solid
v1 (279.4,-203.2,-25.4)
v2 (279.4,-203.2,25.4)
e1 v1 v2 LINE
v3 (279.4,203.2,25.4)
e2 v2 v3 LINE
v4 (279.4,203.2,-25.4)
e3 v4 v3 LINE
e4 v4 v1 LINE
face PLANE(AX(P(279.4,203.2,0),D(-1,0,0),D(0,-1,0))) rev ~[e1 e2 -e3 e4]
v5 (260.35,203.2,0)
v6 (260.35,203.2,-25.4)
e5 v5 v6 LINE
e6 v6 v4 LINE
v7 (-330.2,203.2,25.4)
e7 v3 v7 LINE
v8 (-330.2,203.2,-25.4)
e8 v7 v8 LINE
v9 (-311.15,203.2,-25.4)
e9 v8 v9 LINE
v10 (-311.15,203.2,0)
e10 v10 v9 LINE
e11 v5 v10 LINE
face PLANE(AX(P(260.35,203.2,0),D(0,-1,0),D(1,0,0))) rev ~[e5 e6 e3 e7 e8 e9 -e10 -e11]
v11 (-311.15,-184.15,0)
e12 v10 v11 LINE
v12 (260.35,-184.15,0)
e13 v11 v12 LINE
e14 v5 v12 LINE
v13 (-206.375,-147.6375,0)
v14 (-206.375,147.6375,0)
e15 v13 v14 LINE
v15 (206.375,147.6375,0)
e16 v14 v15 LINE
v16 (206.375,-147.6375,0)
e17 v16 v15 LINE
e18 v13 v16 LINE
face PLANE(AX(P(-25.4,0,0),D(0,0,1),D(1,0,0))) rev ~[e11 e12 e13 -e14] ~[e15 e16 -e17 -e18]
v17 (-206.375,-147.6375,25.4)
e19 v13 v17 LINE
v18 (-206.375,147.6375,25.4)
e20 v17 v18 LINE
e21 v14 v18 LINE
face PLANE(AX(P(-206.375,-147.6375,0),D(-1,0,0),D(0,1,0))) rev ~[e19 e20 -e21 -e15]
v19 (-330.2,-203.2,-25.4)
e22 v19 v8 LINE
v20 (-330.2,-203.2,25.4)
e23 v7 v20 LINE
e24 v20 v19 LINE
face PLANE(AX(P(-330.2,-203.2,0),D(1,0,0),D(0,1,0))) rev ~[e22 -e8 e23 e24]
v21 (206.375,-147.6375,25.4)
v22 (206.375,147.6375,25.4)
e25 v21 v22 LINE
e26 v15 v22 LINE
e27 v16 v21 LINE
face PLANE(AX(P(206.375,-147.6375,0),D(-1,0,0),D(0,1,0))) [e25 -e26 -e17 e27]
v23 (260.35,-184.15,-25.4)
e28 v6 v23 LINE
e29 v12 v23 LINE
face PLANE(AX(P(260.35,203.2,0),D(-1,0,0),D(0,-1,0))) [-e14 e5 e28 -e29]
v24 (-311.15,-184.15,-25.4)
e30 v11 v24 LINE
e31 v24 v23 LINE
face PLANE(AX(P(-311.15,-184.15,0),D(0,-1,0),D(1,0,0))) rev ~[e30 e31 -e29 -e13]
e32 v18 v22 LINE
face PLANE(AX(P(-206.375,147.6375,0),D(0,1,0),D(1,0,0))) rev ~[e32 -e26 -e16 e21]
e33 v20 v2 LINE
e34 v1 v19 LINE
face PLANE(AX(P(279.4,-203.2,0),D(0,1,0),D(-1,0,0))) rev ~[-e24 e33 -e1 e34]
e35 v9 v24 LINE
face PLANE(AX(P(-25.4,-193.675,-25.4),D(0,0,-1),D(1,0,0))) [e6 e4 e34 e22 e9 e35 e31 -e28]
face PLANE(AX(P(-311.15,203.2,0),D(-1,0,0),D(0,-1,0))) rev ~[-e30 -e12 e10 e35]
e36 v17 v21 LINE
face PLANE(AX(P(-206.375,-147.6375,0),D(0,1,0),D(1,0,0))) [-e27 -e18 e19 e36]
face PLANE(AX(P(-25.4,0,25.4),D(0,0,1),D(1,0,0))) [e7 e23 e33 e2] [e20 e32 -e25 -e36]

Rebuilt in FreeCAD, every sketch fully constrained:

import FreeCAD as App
import Part
import Sketcher
Q = App.Units.Quantity

doc = App.newDocument("Part")
params = doc.addObject("Spreadsheet::Sheet", "Params")
for row, (alias, value) in enumerate([
    ("sketch1_width", "24 in"),
    ("sketch1_height", "16 in"),
    ("sketch1_width2", "16.25 in"),
    ("sketch1_height2", "11.625 in"),
    ("pad1_length", "1 in"),
    ("sketch2_width", "24 in"),
    ("sketch2_height", "16 in"),
    ("sketch2_width2", "22.5 in"),
    ("sketch2_height2", "15.25 in"),
    ("pad2_length", "1 in"),
], start=1):
    params.set(f"A{row}", alias)
    params.set(f"B{row}", "=" + value)
    params.setAlias(f"B{row}", alias)

body = doc.addObject("PartDesign::Body", "Body")

# Sketch on XY plane
sketch1 = body.newObject("Sketcher::SketchObject", "Sketch")
sketch1.AttachmentSupport = (doc.getObject("XY_Plane"), [""])
sketch1.MapMode = "FlatFace"
sketch1.addGeometry(Part.LineSegment(App.Vector(279, -203, 0), App.Vector(279, 203, 0)), False)
sketch1.addGeometry(Part.LineSegment(App.Vector(279, 203, 0), App.Vector(-330, 203, 0)), False)
sketch1.addGeometry(Part.LineSegment(App.Vector(-330, 203, 0), App.Vector(-330, -203, 0)), False)
sketch1.addGeometry(Part.LineSegment(App.Vector(-330, -203, 0), App.Vector(279, -203, 0)), False)
sketch1.addGeometry(Part.LineSegment(App.Vector(206, -148, 0), App.Vector(-206, -148, 0)), False)
sketch1.addGeometry(Part.LineSegment(App.Vector(-206, -148, 0), App.Vector(-206, 148, 0)), False)
sketch1.addGeometry(Part.LineSegment(App.Vector(-206, 148, 0), App.Vector(206, 148, 0)), False)
sketch1.addGeometry(Part.LineSegment(App.Vector(206, 148, 0), App.Vector(206, -148, 0)), False)
sketch1.addConstraint(Sketcher.Constraint("Coincident", 0, 2, 1, 1))
sketch1.addConstraint(Sketcher.Constraint("Coincident", 1, 2, 2, 1))
sketch1.addConstraint(Sketcher.Constraint("Coincident", 2, 2, 3, 1))
sketch1.addConstraint(Sketcher.Constraint("Coincident", 3, 2, 0, 1))
sketch1.addConstraint(Sketcher.Constraint("Coincident", 4, 2, 5, 1))
sketch1.addConstraint(Sketcher.Constraint("Coincident", 5, 2, 6, 1))
sketch1.addConstraint(Sketcher.Constraint("Coincident", 6, 2, 7, 1))
sketch1.addConstraint(Sketcher.Constraint("Coincident", 7, 2, 4, 1))
sketch1.addConstraint(Sketcher.Constraint("Vertical", 0))
sketch1.addConstraint(Sketcher.Constraint("Horizontal", 1))
sketch1.addConstraint(Sketcher.Constraint("Vertical", 2))
sketch1.addConstraint(Sketcher.Constraint("Horizontal", 3))
sketch1.addConstraint(Sketcher.Constraint("Horizontal", 4))
sketch1.addConstraint(Sketcher.Constraint("Vertical", 5))
sketch1.addConstraint(Sketcher.Constraint("Horizontal", 6))
sketch1.addConstraint(Sketcher.Constraint("Vertical", 7))
sketch1.addConstraint(Sketcher.Constraint("Symmetric", 4, 2, 6, 2, -1, 1))
sketch1.addConstraint(Sketcher.Constraint("DistanceX", 1, 2, 1, 1, Q("24 in")))
sketch1.addConstraint(Sketcher.Constraint("DistanceY", 0, 1, 0, 2, Q("16 in")))
sketch1.addConstraint(Sketcher.Constraint("DistanceX", -1, 1, 0, 2, Q("11 in")))
sketch1.addConstraint(Sketcher.Constraint("DistanceY", -1, 1, 0, 2, Q("8 in")))
sketch1.addConstraint(Sketcher.Constraint("DistanceX", 4, 2, 4, 1, Q("16.25 in")))
sketch1.addConstraint(Sketcher.Constraint("DistanceY", 5, 1, 5, 2, Q("11.625 in")))
sketch1.setExpression("Constraints[17]", "Params.sketch1_width")
sketch1.setExpression("Constraints[18]", "Params.sketch1_height")
sketch1.setExpression("Constraints[21]", "Params.sketch1_width2")
sketch1.setExpression("Constraints[22]", "Params.sketch1_height2")
pad1 = body.newObject("PartDesign::Pad", "Pad")
pad1.Profile = sketch1
pad1.setExpression("Length", "Params.pad1_length")

# Sketch on XY plane
sketch2 = body.newObject("Sketcher::SketchObject", "Sketch001")
sketch2.AttachmentSupport = (doc.getObject("XY_Plane"), [""])
sketch2.MapMode = "FlatFace"
sketch2.addGeometry(Part.LineSegment(App.Vector(279, -203, 0), App.Vector(-330, -203, 0)), False)
sketch2.addGeometry(Part.LineSegment(App.Vector(-330, -203, 0), App.Vector(-330, 203, 0)), False)
sketch2.addGeometry(Part.LineSegment(App.Vector(-330, 203, 0), App.Vector(-311, 203, 0)), False)
sketch2.addGeometry(Part.LineSegment(App.Vector(-311, 203, 0), App.Vector(-311, -184, 0)), False)
sketch2.addGeometry(Part.LineSegment(App.Vector(-311, -184, 0), App.Vector(260, -184, 0)), False)
sketch2.addGeometry(Part.LineSegment(App.Vector(260, -184, 0), App.Vector(260, 203, 0)), False)
sketch2.addGeometry(Part.LineSegment(App.Vector(260, 203, 0), App.Vector(279, 203, 0)), False)
sketch2.addGeometry(Part.LineSegment(App.Vector(279, 203, 0), App.Vector(279, -203, 0)), False)
sketch2.addConstraint(Sketcher.Constraint("Coincident", 0, 2, 1, 1))
sketch2.addConstraint(Sketcher.Constraint("Coincident", 1, 2, 2, 1))
sketch2.addConstraint(Sketcher.Constraint("Coincident", 2, 2, 3, 1))
sketch2.addConstraint(Sketcher.Constraint("Coincident", 3, 2, 4, 1))
sketch2.addConstraint(Sketcher.Constraint("Coincident", 4, 2, 5, 1))
sketch2.addConstraint(Sketcher.Constraint("Coincident", 5, 2, 6, 1))
sketch2.addConstraint(Sketcher.Constraint("Coincident", 6, 2, 7, 1))
sketch2.addConstraint(Sketcher.Constraint("Coincident", 7, 2, 0, 1))
sketch2.addConstraint(Sketcher.Constraint("Horizontal", 0))
sketch2.addConstraint(Sketcher.Constraint("Vertical", 1))
sketch2.addConstraint(Sketcher.Constraint("Horizontal", 2))
sketch2.addConstraint(Sketcher.Constraint("Vertical", 3))
sketch2.addConstraint(Sketcher.Constraint("Horizontal", 4))
sketch2.addConstraint(Sketcher.Constraint("Vertical", 5))
sketch2.addConstraint(Sketcher.Constraint("Horizontal", 6))
sketch2.addConstraint(Sketcher.Constraint("Vertical", 7))
sketch2.addConstraint(Sketcher.Constraint("Horizontal", 2, 2, 5, 2))
sketch2.addConstraint(Sketcher.Constraint("Equal", 2, 6))
sketch2.addConstraint(Sketcher.Constraint("DistanceX", 0, 2, 0, 1, Q("24 in")))
sketch2.addConstraint(Sketcher.Constraint("DistanceY", 1, 1, 1, 2, Q("16 in")))
sketch2.addConstraint(Sketcher.Constraint("DistanceX", 4, 1, 4, 2, Q("22.5 in")))
sketch2.addConstraint(Sketcher.Constraint("DistanceX", 0, 2, -1, 1, Q("13 in")))
sketch2.addConstraint(Sketcher.Constraint("DistanceY", 0, 2, -1, 1, Q("8 in")))
sketch2.addConstraint(Sketcher.Constraint("DistanceY", 3, 2, 3, 1, Q("15.25 in")))
sketch2.setExpression("Constraints[18]", "Params.sketch2_width")
sketch2.setExpression("Constraints[19]", "Params.sketch2_height")
sketch2.setExpression("Constraints[20]", "Params.sketch2_width2")
sketch2.setExpression("Constraints[23]", "Params.sketch2_height2")
pad2 = body.newObject("PartDesign::Pad", "Pad001")
pad2.Profile = sketch2
pad2.setExpression("Length", "Params.pad2_length")
pad2.Reversed = True

doc.recompute()
